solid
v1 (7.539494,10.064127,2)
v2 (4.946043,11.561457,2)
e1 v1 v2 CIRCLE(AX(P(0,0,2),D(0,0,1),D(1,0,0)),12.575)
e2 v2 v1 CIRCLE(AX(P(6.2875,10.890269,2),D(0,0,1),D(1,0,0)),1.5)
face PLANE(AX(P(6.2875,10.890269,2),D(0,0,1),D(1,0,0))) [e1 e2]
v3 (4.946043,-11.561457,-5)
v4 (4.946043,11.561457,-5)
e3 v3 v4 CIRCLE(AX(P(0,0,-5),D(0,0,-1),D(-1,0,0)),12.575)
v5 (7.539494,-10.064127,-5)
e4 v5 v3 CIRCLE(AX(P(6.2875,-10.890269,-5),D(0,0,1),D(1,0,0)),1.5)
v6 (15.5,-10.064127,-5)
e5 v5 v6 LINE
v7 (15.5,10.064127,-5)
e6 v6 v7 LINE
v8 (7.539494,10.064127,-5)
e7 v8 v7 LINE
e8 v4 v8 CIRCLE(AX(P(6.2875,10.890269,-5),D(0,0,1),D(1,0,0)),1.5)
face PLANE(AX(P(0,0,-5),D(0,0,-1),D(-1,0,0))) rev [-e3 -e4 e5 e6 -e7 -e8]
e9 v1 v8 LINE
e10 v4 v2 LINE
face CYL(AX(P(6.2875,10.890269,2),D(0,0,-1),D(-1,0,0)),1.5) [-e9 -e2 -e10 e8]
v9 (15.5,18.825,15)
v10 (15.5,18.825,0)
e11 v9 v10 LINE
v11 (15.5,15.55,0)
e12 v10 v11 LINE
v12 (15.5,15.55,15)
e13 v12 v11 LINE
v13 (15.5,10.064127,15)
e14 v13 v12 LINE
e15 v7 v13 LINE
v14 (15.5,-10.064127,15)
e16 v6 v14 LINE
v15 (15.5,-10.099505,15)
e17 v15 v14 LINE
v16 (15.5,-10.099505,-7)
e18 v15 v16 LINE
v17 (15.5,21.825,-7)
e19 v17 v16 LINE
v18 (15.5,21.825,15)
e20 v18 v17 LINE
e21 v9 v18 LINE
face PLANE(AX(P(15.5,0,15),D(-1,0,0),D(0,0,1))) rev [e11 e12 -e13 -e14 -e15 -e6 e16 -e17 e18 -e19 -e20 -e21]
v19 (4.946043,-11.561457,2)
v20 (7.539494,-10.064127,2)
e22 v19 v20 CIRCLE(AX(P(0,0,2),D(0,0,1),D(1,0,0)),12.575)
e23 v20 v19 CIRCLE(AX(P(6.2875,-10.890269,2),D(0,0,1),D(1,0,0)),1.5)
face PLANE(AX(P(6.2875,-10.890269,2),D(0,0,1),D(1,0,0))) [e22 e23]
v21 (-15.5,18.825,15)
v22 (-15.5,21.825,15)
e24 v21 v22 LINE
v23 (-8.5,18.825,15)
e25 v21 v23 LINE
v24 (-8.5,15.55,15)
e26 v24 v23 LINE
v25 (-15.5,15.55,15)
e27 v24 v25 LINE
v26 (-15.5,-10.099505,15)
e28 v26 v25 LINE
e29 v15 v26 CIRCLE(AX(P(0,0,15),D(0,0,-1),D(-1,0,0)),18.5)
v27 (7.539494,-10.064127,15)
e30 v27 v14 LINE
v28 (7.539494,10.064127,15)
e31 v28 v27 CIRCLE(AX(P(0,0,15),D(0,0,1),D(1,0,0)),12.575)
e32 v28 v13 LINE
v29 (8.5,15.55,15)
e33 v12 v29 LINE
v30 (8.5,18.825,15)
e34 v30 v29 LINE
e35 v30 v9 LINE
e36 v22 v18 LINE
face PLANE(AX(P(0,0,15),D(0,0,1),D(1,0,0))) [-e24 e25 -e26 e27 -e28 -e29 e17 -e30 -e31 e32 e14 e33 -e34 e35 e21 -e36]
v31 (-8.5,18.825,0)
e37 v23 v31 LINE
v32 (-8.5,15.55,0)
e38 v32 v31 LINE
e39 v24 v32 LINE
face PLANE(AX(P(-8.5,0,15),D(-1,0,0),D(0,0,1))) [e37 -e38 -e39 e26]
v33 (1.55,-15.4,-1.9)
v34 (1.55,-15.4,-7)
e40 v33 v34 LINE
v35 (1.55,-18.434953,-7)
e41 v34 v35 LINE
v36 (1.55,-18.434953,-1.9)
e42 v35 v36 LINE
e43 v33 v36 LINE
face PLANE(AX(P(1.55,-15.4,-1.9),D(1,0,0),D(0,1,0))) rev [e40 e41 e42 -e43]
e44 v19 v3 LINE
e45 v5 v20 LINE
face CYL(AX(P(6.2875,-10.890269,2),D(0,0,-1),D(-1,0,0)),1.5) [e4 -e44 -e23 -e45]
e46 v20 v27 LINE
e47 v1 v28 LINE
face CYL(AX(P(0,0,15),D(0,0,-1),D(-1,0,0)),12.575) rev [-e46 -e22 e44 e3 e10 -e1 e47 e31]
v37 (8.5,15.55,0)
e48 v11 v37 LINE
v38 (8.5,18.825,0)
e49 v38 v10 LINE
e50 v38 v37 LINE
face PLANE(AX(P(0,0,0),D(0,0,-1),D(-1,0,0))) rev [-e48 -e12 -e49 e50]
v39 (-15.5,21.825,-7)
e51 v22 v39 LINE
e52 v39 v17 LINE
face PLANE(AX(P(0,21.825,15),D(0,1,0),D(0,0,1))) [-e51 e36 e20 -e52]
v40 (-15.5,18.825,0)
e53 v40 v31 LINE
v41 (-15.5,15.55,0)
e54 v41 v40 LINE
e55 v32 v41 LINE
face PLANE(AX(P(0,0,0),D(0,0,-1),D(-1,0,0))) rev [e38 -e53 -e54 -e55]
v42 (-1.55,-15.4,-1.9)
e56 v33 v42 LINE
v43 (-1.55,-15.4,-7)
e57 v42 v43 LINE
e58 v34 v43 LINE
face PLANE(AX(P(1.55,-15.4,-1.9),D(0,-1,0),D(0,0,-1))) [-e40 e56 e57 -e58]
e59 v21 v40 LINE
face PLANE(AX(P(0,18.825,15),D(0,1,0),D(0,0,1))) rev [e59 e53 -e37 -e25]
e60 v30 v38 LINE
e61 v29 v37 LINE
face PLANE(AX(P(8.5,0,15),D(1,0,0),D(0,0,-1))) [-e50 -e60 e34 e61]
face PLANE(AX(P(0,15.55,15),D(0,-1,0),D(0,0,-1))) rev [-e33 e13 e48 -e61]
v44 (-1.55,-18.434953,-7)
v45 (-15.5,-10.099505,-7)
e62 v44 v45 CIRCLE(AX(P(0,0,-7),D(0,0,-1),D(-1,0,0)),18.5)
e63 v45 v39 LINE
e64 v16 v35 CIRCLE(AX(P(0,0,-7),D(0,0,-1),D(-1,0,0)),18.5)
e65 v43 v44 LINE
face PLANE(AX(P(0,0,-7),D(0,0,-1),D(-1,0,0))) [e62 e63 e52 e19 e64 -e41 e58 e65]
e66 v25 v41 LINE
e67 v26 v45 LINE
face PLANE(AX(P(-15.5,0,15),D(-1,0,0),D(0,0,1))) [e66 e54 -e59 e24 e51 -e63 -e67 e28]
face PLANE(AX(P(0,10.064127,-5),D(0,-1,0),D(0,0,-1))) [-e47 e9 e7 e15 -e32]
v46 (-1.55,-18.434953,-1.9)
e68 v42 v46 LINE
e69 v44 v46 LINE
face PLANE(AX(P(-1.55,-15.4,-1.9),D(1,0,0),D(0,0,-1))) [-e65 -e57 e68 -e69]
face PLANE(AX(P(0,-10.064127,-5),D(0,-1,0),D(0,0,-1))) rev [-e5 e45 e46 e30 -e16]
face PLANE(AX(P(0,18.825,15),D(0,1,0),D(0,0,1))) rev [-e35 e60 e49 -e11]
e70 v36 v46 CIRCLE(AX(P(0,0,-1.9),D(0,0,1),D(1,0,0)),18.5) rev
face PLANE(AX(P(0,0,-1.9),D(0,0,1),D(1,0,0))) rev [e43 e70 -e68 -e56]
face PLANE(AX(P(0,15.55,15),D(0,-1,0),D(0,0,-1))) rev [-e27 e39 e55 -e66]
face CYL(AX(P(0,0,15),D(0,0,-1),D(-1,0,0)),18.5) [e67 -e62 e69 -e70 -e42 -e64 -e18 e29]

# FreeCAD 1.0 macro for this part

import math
import FreeCAD as App
import Part
import Sketcher
from FreeCAD import Vector

doc = App.newDocument("Part")
body = doc.addObject("PartDesign::Body", "Body")

sketch1 = body.newObject("Sketcher::SketchObject", "Sketch")
sketch1.AttachmentSupport = (doc.getObject("XY_Plane"), [""])
sketch1.MapMode = "FlatFace"
sketch1.addGeometry(Part.LineSegment(Vector(8.5, 15.6, 0), Vector(8.5, 18.8, 0)), False)
sketch1.addGeometry(Part.LineSegment(Vector(8.5, 18.8, 0), Vector(15.5, 18.8, 0)), False)
sketch1.addGeometry(Part.LineSegment(Vector(15.5, 18.8, 0), Vector(15.5, 21.8, 0)), False)
sketch1.addGeometry(Part.LineSegment(Vector(15.5, 21.8, 0), Vector(-15.5, 21.8, 0)), False)
sketch1.addGeometry(Part.LineSegment(Vector(-15.5, 21.8, 0), Vector(-15.5, 18.8, 0)), False)
sketch1.addGeometry(Part.LineSegment(Vector(-15.5, 18.8, 0), Vector(-8.5, 18.8, 0)), False)
sketch1.addGeometry(Part.LineSegment(Vector(-8.5, 18.8, 0), Vector(-8.5, 15.6, 0)), False)
sketch1.addGeometry(Part.LineSegment(Vector(-8.5, 15.6, 0), Vector(-15.5, 15.6, 0)), False)
sketch1.addGeometry(Part.LineSegment(Vector(-15.5, 15.6, 0), Vector(-15.5, 0, 0)), False)
sketch1.addGeometry(Part.ArcOfCircle(Part.Circle(Vector(0, 0, 0), Vector(0, 0, 1), 15.5), math.radians(180), math.radians(360)), False)
sketch1.addGeometry(Part.LineSegment(Vector(15.5, 0, 0), Vector(15.5, 15.6, 0)), False)
sketch1.addGeometry(Part.LineSegment(Vector(15.5, 15.6, 0), Vector(8.5, 15.6, 0)), False)
sketch1.addGeometry(Part.Circle(Vector(0, 0, 0), Vector(0, 0, 1), 12.6), False)
sketch1.addConstraint(Sketcher.Constraint("Coincident", 0, 2, 1, 1))
sketch1.addConstraint(Sketcher.Constraint("Coincident", 1, 2, 2, 1))
sketch1.addConstraint(Sketcher.Constraint("Coincident", 2, 2, 3, 1))
sketch1.addConstraint(Sketcher.Constraint("Coincident", 3, 2, 4, 1))
sketch1.addConstraint(Sketcher.Constraint("Coincident", 4, 2, 5, 1))
sketch1.addConstraint(Sketcher.Constraint("Coincident", 5, 2, 6, 1))
sketch1.addConstraint(Sketcher.Constraint("Coincident", 6, 2, 7, 1))
sketch1.addConstraint(Sketcher.Constraint("Coincident", 7, 2, 8, 1))
sketch1.addConstraint(Sketcher.Constraint("Tangent", 8, 2, 9, 1))
sketch1.addConstraint(Sketcher.Constraint("Tangent", 9, 2, 10, 1))
sketch1.addConstraint(Sketcher.Constraint("Coincident", 10, 2, 11, 1))
sketch1.addConstraint(Sketcher.Constraint("Coincident", 11, 2, 0, 1))
sketch1.addConstraint(Sketcher.Constraint("Vertical", 0))
sketch1.addConstraint(Sketcher.Constraint("Horizontal", 1))
sketch1.addConstraint(Sketcher.Constraint("Vertical", 2))
sketch1.addConstraint(Sketcher.Constraint("Horizontal", 3))
sketch1.addConstraint(Sketcher.Constraint("Vertical", 4))
sketch1.addConstraint(Sketcher.Constraint("Horizontal", 5))
sketch1.addConstraint(Sketcher.Constraint("Vertical", 6))
sketch1.addConstraint(Sketcher.Constraint("Horizontal", 7))
sketch1.addConstraint(Sketcher.Constraint("Vertical", 8))
sketch1.addConstraint(Sketcher.Constraint("Vertical", 10))
sketch1.addConstraint(Sketcher.Constraint("Horizontal", 11))
sketch1.addConstraint(Sketcher.Constraint("Coincident", 9, 3, -1, 1))
sketch1.addConstraint(Sketcher.Constraint("Coincident", 12, 3, -1, 1))
sketch1.addConstraint(Sketcher.Constraint("Symmetric", 1, 2, 4, 2, -2))
sketch1.addConstraint(Sketcher.Constraint("Symmetric", 6, 2, 11, 2, -2))
sketch1.addConstraint(Sketcher.Constraint("Vertical", 4, 2, 7, 2))
sketch1.addConstraint(Sketcher.Constraint("Radius", 9, 15.5))
sketch1.addConstraint(Sketcher.Constraint("Diameter", 12, 25.15))
sketch1.addConstraint(Sketcher.Constraint("DistanceX", 1, 1, 1, 2, 7.0))
sketch1.addConstraint(Sketcher.Constraint("DistanceY", 2, 1, 2, 2, 3.0))
sketch1.addConstraint(Sketcher.Constraint("DistanceY", 8, 2, 8, 1, 15.55))
sketch1.addConstraint(Sketcher.Constraint("DistanceY", 0, 1, 0, 2, 3.275))
pad1 = body.newObject("PartDesign::Pad", "Pad")
pad1.Profile = sketch1
pad1.Length = 15

sketch2 = body.newObject("Sketcher::SketchObject", "Sketch001")
sketch2.AttachmentSupport = (doc.getObject("XY_Plane"), [""])
sketch2.MapMode = "FlatFace"
sketch2.AttachmentOffset = App.Placement(Vector(0, 0, -7), App.Rotation())
sketch2.addGeometry(Part.ArcOfCircle(Part.Circle(Vector(0, 0, 0), Vector(0, 0, 1), 16), math.radians(180), math.radians(360)), False)
sketch2.addGeometry(Part.LineSegment(Vector(-16, 0, 0), Vector(-16, 22, 0)), False)
sketch2.addGeometry(Part.LineSegment(Vector(-16, 22, 0), Vector(16, 22, 0)), False)
sketch2.addGeometry(Part.LineSegment(Vector(16, 22, 0), Vector(16, 0, 0)), False)
sketch2.addGeometry(Part.Circle(Vector(0, 0, 0), Vector(0, 0, 1), 13), False)
sketch2.addConstraint(Sketcher.Constraint("Tangent", 0, 1, 1, 1))
sketch2.addConstraint(Sketcher.Constraint("Coincident", 1, 2, 2, 1))
sketch2.addConstraint(Sketcher.Constraint("Coincident", 2, 2, 3, 1))
sketch2.addConstraint(Sketcher.Constraint("Tangent", 3, 2, 0, 2))
sketch2.addConstraint(Sketcher.Constraint("Vertical", 1))
sketch2.addConstraint(Sketcher.Constraint("Horizontal", 2))
sketch2.addConstraint(Sketcher.Constraint("Vertical", 3))
sketch2.addConstraint(Sketcher.Constraint("Coincident", 0, 3, -1, 1))
sketch2.addConstraint(Sketcher.Constraint("Coincident", 4, 3, -1, 1))
sketch2.addConstraint(Sketcher.Constraint("Radius", 0, 15.5))
sketch2.addConstraint(Sketcher.Constraint("Diameter", 4, 25.15))
sketch2.addConstraint(Sketcher.Constraint("DistanceY", 1, 1, 1, 2, 21.825))
pad2 = body.newObject("PartDesign::Pad", "Pad001")
pad2.Profile = sketch2
pad2.Length = 7

sketch3 = body.newObject("Sketcher::SketchObject", "Sketch002")
sketch3.AttachmentSupport = (doc.getObject("XY_Plane"), [""])
sketch3.MapMode = "FlatFace"
sketch3.AttachmentOffset = App.Placement(Vector(0, 0, -7), App.Rotation())
sketch3.addGeometry(Part.Circle(Vector(0, 0, 0), Vector(0, 0, 1), 13), False)
sketch3.addConstraint(Sketcher.Constraint("Coincident", 0, 3, -1, 1))
sketch3.addConstraint(Sketcher.Constraint("Diameter", 0, 25.15))
pad3 = body.newObject("PartDesign::Pad", "Pad002")
pad3.Profile = sketch3
pad3.Length = 2

sketch4 = body.newObject("Sketcher::SketchObject", "Sketch003")
sketch4.AttachmentSupport = (doc.getObject("XY_Plane"), [""])
sketch4.MapMode = "FlatFace"
sketch4.AttachmentOffset = App.Placement(Vector(0, 0, -7), App.Rotation())
sketch4.addGeometry(Part.LineSegment(Vector(-16, -10, 0), Vector(-16, 0, 0)), False)
sketch4.addGeometry(Part.ArcOfCircle(Part.Circle(Vector(0, 0, 0), Vector(0, 0, 1), 16), math.radians(180), math.radians(360)), False)
sketch4.addGeometry(Part.LineSegment(Vector(16, 0, 0), Vector(16, -10, 0)), False)
sketch4.addGeometry(Part.ArcOfCircle(Part.Circle(Vector(0, 0, 0), Vector(0, 0, 1), 18), math.radians(-147), math.radians(-33)), False)
sketch4.addConstraint(Sketcher.Constraint("Tangent", 0, 2, 1, 1))
sketch4.addConstraint(Sketcher.Constraint("Tangent", 1, 2, 2, 1))
sketch4.addConstraint(Sketcher.Constraint("Coincident", 2, 2, 3, 2))
sketch4.addConstraint(Sketcher.Constraint("Coincident", 3, 1, 0, 1))
sketch4.addConstraint(Sketcher.Constraint("Vertical", 0))
sketch4.addConstraint(Sketcher.Constraint("Vertical", 2))
sketch4.addConstraint(Sketcher.Constraint("Coincident", 1, 3, -1, 1))
sketch4.addConstraint(Sketcher.Constraint("Coincident", 3, 3, -1, 1))
sketch4.addConstraint(Sketcher.Constraint("Radius", 1, 15.5))
sketch4.addConstraint(Sketcher.Constraint("Radius", 3, 18.5))
pad4 = body.newObject("PartDesign::Pad", "Pad003")
pad4.Profile = sketch4
pad4.Length = 22

sketch5 = body.newObject("Sketcher::SketchObject", "Sketch004")
sketch5.AttachmentSupport = (doc.getObject("XY_Plane"), [""])
sketch5.MapMode = "FlatFace"
sketch5.AttachmentOffset = App.Placement(Vector(0, 0, -7), App.Rotation())
sketch5.addGeometry(Part.LineSegment(Vector(1.6, -15.4, 0), Vector(1.6, -18.5, 0)), False)
sketch5.addGeometry(Part.LineSegment(Vector(1.6, -18.5, 0), Vector(-1.6, -18.5, 0)), False)
sketch5.addGeometry(Part.LineSegment(Vector(-1.6, -18.5, 0), Vector(-1.6, -15.4, 0)), False)
sketch5.addGeometry(Part.LineSegment(Vector(-1.6, -15.4, 0), Vector(1.6, -15.4, 0)), False)
sketch5.addConstraint(Sketcher.Constraint("Coincident", 0, 2, 1, 1))
sketch5.addConstraint(Sketcher.Constraint("Coincident", 1, 2, 2, 1))
sketch5.addConstraint(Sketcher.Constraint("Coincident", 2, 2, 3, 1))
sketch5.addConstraint(Sketcher.Constraint("Coincident", 3, 2, 0, 1))
sketch5.addConstraint(Sketcher.Constraint("Vertical", 0))
sketch5.addConstraint(Sketcher.Constraint("Horizontal", 1))
sketch5.addConstraint(Sketcher.Constraint("Vertical", 2))
sketch5.addConstraint(Sketcher.Constraint("Horizontal", 3))
sketch5.addConstraint(Sketcher.Constraint("Equal", 3, 0))
sketch5.addConstraint(Sketcher.Constraint("DistanceX", 1, 2, 1, 1, 3.1))
sketch5.addConstraint(Sketcher.Constraint("DistanceY", 0, 2, -1, 1, 18.5))
sketch5.addConstraint(Sketcher.Constraint("DistanceX", -1, 1, 0, 2, 1.55))
pocket1 = body.newObject("PartDesign::Pocket", "Pocket")
pocket1.Profile = sketch5
pocket1.Length = 5.1
pocket1.Reversed = True

sketch6 = body.newObject("Sketcher::SketchObject", "Sketch005")
sketch6.AttachmentSupport = (doc.getObject("XY_Plane"), [""])
sketch6.MapMode = "FlatFace"
sketch6.AttachmentOffset = App.Placement(Vector(0, 0, -5), App.Rotation())
sketch6.addGeometry(Part.Circle(Vector(6.3, 10.9, 0), Vector(0, 0, 1), 1.5), False)
sketch6.addGeometry(Part.Circle(Vector(6.3, -10.9, 0), Vector(0, 0, 1), 1.5), False)
sketch6.addConstraint(Sketcher.Constraint("Equal", 0, 1))
sketch6.addConstraint(Sketcher.Constraint("Symmetric", 0, 3, 1, 3, -1))
sketch6.addConstraint(Sketcher.Constraint("Diameter", 0, 3.0))
sketch6.addConstraint(Sketcher.Constraint("DistanceX", -1, 1, 0, 3, 6.2875))
sketch6.addConstraint(Sketcher.Constraint("DistanceY", -1, 1, 0, 3, 10.890269))
pad5 = body.newObject("PartDesign::Pad", "Pad004")
pad5.Profile = sketch6
pad5.Length = 7

sketch7 = body.newObject("Sketcher::SketchObject", "Sketch006")
sketch7.AttachmentSupport = (doc.getObject("XY_Plane"), [""])
sketch7.MapMode = "FlatFace"
sketch7.AttachmentOffset = App.Placement(Vector(0, 0, -5), App.Rotation())
sketch7.addGeometry(Part.ArcOfCircle(Part.Circle(Vector(0, 0, 0), Vector(0, 0, 1), 13), math.radians(-53), math.radians(0)), False)
sketch7.addGeometry(Part.LineSegment(Vector(8, -10, 0), Vector(16, -10, 0)), False)
sketch7.addGeometry(Part.LineSegment(Vector(16, -10, 0), Vector(16, 10, 0)), False)
sketch7.addGeometry(Part.LineSegment(Vector(16, 10, 0), Vector(8, 10, 0)), False)
sketch7.addGeometry(Part.ArcOfCircle(Part.Circle(Vector(0, 0, 0), Vector(0, 0, 1), 13), math.radians(0), math.radians(53)), False)
sketch7.addConstraint(Sketcher.Constraint("Coincident", 0, 1, 1, 1))
sketch7.addConstraint(Sketcher.Constraint("Coincident", 1, 2, 2, 1))
sketch7.addConstraint(Sketcher.Constraint("Coincident", 2, 2, 3, 1))
sketch7.addConstraint(Sketcher.Constraint("Coincident", 3, 2, 4, 2))
sketch7.addConstraint(Sketcher.Constraint("Tangent", 4, 1, 0, 2))
sketch7.addConstraint(Sketcher.Constraint("Horizontal", 1))
sketch7.addConstraint(Sketcher.Constraint("Vertical", 2))
sketch7.addConstraint(Sketcher.Constraint("Horizontal", 3))
sketch7.addConstraint(Sketcher.Constraint("Coincident", 0, 3, -1, 1))
sketch7.addConstraint(Sketcher.Constraint("Equal", 0, 4))
sketch7.addConstraint(Sketcher.Constraint("PointOnObject", 4, 1, -1))
sketch7.addConstraint(Sketcher.Constraint("Vertical", 0, 1, 3, 2))
sketch7.addConstraint(Sketcher.Constraint("Radius", 0, 12.575))
sketch7.addConstraint(Sketcher.Constraint("DistanceX", -1, 1, 1, 2, 15.5))
sketch7.addConstraint(Sketcher.Constraint("DistanceX", 1, 1, 1, 2, 7.960506))
pocket2 = body.newObject("PartDesign::Pocket", "Pocket001")
pocket2.Profile = sketch7
pocket2.Length = 20
pocket2.Reversed = True

doc.recompute()
